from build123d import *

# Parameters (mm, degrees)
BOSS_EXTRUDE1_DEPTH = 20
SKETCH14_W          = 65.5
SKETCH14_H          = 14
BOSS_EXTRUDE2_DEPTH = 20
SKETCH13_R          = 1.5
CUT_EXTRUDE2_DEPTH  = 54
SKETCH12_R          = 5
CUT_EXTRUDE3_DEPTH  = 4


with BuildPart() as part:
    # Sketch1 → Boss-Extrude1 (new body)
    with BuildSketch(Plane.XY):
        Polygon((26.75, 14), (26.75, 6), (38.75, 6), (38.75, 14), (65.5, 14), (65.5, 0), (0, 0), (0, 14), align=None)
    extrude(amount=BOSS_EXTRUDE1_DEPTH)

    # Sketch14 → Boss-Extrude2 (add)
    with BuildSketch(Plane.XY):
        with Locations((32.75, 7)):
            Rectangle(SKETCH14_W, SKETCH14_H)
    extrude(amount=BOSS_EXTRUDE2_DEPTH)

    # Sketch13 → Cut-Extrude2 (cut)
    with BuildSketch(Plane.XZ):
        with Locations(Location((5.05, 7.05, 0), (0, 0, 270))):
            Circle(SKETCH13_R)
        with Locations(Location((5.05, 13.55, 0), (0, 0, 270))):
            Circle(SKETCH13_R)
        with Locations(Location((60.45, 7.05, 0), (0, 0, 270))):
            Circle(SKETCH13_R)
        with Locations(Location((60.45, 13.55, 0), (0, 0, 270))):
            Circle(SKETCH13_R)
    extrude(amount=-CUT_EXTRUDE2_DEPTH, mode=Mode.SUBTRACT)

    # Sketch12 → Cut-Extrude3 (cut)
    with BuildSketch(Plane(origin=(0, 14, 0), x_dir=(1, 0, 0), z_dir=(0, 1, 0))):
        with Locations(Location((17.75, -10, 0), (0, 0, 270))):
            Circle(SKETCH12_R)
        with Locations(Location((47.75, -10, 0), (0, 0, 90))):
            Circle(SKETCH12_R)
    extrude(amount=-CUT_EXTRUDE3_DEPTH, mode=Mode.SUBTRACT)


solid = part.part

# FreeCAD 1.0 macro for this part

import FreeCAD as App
import Part
import Sketcher


def add_polygon(sketch, points):
    """Adds a closed chain of lines whose ends are joined by coincident constraints."""
    first, n = sketch.GeometryCount, len(points)
    for a, b in zip(points, points[1:] + points[:1]):
        sketch.addGeometry(Part.LineSegment(App.Vector(*a, 0), App.Vector(*b, 0)), False)
    for i in range(n):
        sketch.addConstraint(Sketcher.Constraint("Coincident", first + i, 2, first + (i + 1) % n, 1))

doc = App.newDocument("Part")
body = doc.addObject("PartDesign::Body", "Body")

# Sketch on XY plane
sketch1 = body.newObject("Sketcher::SketchObject", "Sketch")
sketch1.AttachmentSupport = (doc.getObject("XY_Plane"), [""])
sketch1.MapMode = "FlatFace"
add_polygon(sketch1, [(27, 6), (27, 14), (0, 14), (0, 0), (66, 0), (66, 14), (39, 14), (39, 6)])  # lines 0-7
sketch1.addConstraint([
    Sketcher.Constraint("Vertical", 0),
    Sketcher.Constraint("Horizontal", 1),
    Sketcher.Constraint("Vertical", 2),
    Sketcher.Constraint("Horizontal", 3),
    Sketcher.Constraint("Vertical", 4),
    Sketcher.Constraint("Horizontal", 5),
    Sketcher.Constraint("Vertical", 6),
    Sketcher.Constraint("Horizontal", 7),
    Sketcher.Constraint("Coincident", 2, 2, -1, 1),
    Sketcher.Constraint("Horizontal", 1, 2, 4, 2),
    Sketcher.Constraint("Equal", 1, 5),
    Sketcher.Constraint("DistanceX", 7, 2, 7, 1, 12.0),
    Sketcher.Constraint("DistanceY", 0, 1, 0, 2, 8.0),
    Sketcher.Constraint("DistanceY", 2, 2, 2, 1, 14.0),
    Sketcher.Constraint("DistanceX", 3, 1, 3, 2, 65.5),
])
pad1 = body.newObject("PartDesign::Pad", "Pad")
pad1.Profile = sketch1
pad1.Length = 20

# Sketch on XY plane
sketch2 = body.newObject("Sketcher::SketchObject", "Sketch001")
sketch2.AttachmentSupport = (doc.getObject("XY_Plane"), [""])
sketch2.MapMode = "FlatFace"
add_polygon(sketch2, [(0, 14), (0, 0), (66, 0), (66, 14)])  # lines 0-3
sketch2.addConstraint([
    Sketcher.Constraint("Vertical", 0),
    Sketcher.Constraint("Horizontal", 1),
    Sketcher.Constraint("Vertical", 2),
    Sketcher.Constraint("Horizontal", 3),
    Sketcher.Constraint("Coincident", 0, 2, -1, 1),
    Sketcher.Constraint("DistanceY", 0, 2, 0, 1, 14.0),
    Sketcher.Constraint("DistanceX", 1, 1, 1, 2, 65.5),
])
pad2 = body.newObject("PartDesign::Pad", "Pad001")
pad2.Profile = sketch2
pad2.Length = 20

# Sketch on XZ plane
sketch3 = body.newObject("Sketcher::SketchObject", "Sketch002")
sketch3.AttachmentSupport = (doc.getObject("XZ_Plane"), [""])
sketch3.MapMode = "FlatFace"
sketch3.addGeometry([
    Part.Circle(App.Vector(5, 7, 0), App.Vector(0, 0, 1), 1.5),
    Part.Circle(App.Vector(5, 13.6, 0), App.Vector(0, 0, 1), 1.5),
    Part.Circle(App.Vector(60.5, 7, 0), App.Vector(0, 0, 1), 1.5),
    Part.Circle(App.Vector(60.5, 13.6, 0), App.Vector(0, 0, 1), 1.5),
], False)
sketch3.addConstraint([
    Sketcher.Constraint("Equal", 0, 1),
    Sketcher.Constraint("Equal", 1, 2),
    Sketcher.Constraint("Equal", 2, 3),
    Sketcher.Constraint("Horizontal", 0, 3, 2, 3),
    Sketcher.Constraint("Horizontal", 1, 3, 3, 3),
    Sketcher.Constraint("Vertical", 0, 3, 1, 3),
    Sketcher.Constraint("Vertical", 2, 3, 3, 3),
    Sketcher.Constraint("Diameter", 0, 3.0),
    Sketcher.Constraint("DistanceY", 0, 3, 1, 3, 6.5),
    Sketcher.Constraint("DistanceX", 0, 3, 2, 3, 55.4),
    Sketcher.Constraint("DistanceX", -1, 1, 0, 3, 5.05),
    Sketcher.Constraint("DistanceY", -1, 1, 0, 3, 7.05),
])
pocket1 = body.newObject("PartDesign::Pocket", "Pocket")
pocket1.Profile = sketch3
pocket1.Length = 54

# Sketch on XZ plane
sketch4 = body.newObject("Sketcher::SketchObject", "Sketch003")
sketch4.AttachmentSupport = (doc.getObject("XZ_Plane"), [""])
sketch4.MapMode = "FlatFace"
sketch4.AttachmentOffset = App.Placement(App.Vector(0, 0, -14), App.Rotation())
sketch4.addGeometry([
    Part.Circle(App.Vector(18, 10, 0), App.Vector(0, 0, 1), 5),
    Part.Circle(App.Vector(48, 10, 0), App.Vector(0, 0, 1), 5),
], False)
sketch4.addConstraint([
    Sketcher.Constraint("Equal", 0, 1),
    Sketcher.Constraint("Horizontal", 0, 3, 1, 3),
    Sketcher.Constraint("Diameter", 0, 10.0),
    Sketcher.Constraint("DistanceY", -1, 1, 0, 3, 10.0),
    Sketcher.Constraint("DistanceX", 0, 3, 1, 3, 30.0),
    Sketcher.Constraint("DistanceX", -1, 1, 0, 3, 17.75),
])
pocket2 = body.newObject("PartDesign::Pocket", "Pocket001")
pocket2.Profile = sketch4
pocket2.Length = 4
pocket2.Reversed = True

doc.recompute()
